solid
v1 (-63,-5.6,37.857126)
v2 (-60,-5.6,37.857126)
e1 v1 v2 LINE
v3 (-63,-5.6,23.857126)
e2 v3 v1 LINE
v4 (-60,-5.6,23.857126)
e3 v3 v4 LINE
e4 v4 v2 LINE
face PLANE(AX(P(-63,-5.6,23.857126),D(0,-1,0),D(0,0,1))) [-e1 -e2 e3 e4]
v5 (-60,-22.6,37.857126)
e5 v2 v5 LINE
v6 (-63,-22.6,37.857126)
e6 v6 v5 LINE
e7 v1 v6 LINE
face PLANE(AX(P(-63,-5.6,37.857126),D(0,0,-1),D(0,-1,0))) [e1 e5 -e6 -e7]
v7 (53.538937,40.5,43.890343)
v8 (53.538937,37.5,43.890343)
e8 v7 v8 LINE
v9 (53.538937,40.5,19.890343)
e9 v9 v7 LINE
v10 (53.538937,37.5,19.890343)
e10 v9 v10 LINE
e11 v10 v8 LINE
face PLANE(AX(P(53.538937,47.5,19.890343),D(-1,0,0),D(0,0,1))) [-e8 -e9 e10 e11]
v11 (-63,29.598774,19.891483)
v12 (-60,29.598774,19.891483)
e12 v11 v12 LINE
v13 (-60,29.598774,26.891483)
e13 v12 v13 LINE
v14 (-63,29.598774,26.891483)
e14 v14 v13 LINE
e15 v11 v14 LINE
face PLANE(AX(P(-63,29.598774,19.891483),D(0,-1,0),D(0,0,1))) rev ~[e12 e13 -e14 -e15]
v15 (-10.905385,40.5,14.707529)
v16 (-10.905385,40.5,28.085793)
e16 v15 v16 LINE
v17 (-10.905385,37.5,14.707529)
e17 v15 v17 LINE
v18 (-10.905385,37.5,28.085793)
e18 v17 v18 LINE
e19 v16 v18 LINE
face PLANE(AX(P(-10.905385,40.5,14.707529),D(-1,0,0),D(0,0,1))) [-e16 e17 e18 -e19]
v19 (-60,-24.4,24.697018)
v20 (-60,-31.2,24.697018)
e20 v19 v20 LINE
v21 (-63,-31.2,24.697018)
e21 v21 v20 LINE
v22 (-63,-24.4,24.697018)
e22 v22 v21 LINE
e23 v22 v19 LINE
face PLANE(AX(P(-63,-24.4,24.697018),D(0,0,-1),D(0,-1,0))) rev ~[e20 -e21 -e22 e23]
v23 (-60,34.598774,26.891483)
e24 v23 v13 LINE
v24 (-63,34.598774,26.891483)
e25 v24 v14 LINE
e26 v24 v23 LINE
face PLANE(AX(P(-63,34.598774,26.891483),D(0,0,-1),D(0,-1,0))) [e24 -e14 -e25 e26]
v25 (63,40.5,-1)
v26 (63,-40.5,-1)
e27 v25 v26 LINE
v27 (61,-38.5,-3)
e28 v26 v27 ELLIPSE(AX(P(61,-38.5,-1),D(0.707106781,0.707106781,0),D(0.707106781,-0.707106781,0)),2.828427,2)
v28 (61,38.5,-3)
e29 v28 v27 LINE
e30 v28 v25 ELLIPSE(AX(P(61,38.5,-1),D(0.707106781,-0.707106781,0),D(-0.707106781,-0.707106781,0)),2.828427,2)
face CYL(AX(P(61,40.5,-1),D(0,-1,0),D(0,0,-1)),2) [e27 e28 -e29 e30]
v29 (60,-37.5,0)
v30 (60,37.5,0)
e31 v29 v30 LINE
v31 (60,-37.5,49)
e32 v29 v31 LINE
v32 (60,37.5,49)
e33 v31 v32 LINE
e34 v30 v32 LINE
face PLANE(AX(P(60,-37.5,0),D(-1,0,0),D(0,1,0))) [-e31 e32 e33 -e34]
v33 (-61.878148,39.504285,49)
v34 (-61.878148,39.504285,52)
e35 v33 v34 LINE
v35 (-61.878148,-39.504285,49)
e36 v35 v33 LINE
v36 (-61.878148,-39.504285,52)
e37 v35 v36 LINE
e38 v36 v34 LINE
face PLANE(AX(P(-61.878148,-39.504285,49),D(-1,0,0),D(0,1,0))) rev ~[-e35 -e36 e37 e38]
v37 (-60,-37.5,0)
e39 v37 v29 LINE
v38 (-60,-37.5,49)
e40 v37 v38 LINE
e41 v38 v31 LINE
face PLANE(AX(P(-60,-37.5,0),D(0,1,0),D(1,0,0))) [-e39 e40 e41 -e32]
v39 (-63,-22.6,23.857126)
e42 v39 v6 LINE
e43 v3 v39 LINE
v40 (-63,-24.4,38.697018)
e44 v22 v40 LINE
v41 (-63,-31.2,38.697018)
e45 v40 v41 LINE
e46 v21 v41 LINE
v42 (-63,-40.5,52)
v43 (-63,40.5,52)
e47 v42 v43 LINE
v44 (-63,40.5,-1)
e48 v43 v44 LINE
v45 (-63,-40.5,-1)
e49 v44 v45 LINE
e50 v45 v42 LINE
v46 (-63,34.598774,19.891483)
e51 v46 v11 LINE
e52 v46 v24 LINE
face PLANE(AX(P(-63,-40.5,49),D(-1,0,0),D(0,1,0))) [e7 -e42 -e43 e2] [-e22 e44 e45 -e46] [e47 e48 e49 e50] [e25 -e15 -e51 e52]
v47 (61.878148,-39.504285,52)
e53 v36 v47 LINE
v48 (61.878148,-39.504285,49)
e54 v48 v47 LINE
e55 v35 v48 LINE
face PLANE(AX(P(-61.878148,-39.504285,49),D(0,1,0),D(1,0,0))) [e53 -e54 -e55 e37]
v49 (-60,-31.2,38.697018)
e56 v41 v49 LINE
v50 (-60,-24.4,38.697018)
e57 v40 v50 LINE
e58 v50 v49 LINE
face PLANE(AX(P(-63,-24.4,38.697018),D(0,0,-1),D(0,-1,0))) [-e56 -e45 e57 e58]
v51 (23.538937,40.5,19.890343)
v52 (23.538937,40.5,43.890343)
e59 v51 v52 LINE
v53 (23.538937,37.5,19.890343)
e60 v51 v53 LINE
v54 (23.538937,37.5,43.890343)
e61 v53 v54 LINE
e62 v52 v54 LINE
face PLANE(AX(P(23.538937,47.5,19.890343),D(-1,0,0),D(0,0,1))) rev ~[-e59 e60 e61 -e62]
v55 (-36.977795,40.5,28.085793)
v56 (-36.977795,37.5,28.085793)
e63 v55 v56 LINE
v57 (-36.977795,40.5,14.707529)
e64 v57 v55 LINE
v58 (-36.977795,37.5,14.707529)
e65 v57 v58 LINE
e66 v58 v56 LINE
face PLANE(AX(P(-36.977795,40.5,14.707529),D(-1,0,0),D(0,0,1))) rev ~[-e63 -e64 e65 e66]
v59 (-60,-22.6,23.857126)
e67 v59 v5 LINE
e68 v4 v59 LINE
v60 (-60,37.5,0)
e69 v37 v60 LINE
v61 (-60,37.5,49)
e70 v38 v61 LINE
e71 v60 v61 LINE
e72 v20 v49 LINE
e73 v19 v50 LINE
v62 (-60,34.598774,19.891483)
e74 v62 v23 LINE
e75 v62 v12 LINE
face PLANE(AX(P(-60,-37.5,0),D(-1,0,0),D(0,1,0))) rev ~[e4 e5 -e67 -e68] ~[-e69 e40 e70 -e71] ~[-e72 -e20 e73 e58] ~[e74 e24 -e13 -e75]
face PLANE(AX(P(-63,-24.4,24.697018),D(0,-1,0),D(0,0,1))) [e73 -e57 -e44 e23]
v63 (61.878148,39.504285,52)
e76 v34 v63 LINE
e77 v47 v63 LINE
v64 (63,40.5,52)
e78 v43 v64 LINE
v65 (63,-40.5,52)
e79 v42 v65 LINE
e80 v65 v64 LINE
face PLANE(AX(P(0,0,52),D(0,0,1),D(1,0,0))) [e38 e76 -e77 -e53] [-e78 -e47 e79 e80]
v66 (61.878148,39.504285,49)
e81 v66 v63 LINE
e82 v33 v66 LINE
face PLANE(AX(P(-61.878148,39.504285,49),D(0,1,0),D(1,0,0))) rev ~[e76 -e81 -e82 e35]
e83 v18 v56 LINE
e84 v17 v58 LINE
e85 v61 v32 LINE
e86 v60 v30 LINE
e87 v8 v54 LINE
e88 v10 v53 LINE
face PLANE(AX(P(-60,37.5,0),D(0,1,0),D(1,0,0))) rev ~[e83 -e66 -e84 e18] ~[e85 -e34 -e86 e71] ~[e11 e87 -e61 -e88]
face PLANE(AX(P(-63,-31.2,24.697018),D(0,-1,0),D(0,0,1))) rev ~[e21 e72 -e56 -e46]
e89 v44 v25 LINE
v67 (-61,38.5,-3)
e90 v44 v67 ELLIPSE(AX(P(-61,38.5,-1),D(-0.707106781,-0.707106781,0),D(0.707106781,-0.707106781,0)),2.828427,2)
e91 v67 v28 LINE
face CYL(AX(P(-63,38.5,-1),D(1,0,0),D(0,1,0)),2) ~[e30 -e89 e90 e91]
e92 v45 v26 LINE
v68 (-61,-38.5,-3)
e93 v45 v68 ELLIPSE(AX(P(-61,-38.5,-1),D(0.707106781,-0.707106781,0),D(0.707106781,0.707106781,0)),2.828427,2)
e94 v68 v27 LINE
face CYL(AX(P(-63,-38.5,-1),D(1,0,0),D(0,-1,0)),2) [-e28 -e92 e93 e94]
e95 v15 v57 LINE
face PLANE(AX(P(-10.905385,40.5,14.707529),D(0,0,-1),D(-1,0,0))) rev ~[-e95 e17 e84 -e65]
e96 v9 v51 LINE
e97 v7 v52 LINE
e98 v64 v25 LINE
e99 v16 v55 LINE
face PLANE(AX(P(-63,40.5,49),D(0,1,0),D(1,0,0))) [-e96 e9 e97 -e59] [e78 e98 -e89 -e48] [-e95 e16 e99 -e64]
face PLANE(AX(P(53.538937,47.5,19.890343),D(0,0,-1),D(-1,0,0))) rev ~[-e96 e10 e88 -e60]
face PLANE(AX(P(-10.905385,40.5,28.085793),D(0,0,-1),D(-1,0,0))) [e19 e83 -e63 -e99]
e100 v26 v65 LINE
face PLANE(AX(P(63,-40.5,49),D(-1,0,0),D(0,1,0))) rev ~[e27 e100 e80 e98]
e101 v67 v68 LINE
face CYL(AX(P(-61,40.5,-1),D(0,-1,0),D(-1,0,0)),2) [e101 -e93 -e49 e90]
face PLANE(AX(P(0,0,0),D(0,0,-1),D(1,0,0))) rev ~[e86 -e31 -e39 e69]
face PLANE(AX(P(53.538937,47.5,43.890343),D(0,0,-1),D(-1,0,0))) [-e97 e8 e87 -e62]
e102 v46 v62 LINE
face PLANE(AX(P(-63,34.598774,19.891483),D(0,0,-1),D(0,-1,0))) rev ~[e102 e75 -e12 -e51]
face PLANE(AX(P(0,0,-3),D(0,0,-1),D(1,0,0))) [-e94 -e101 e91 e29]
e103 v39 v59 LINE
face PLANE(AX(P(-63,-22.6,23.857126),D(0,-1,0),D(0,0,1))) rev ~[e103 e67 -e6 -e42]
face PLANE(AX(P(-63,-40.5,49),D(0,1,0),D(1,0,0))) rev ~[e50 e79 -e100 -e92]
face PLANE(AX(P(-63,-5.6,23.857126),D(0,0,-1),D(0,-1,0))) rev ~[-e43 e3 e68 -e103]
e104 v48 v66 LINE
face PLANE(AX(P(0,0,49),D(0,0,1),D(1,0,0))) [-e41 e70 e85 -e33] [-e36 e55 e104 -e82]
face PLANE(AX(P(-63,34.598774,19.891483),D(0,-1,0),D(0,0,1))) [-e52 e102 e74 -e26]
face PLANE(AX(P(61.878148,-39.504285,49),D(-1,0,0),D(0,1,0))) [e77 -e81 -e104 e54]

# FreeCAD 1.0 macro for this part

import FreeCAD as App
import Part
import Sketcher
from FreeCAD import Vector


def edges_at(feature, points):
    """Names of the edges that pass closest to the given points."""
    edges = feature.Shape.Edges
    near = lambda p: min(range(len(edges)), key=lambda i: edges[i].distToShape(Part.Vertex(*p))[0])
    return sorted({f"Edge{near(p) + 1}" for p in points})


def add_polygon(sketch, points):
    """Adds a closed chain of lines whose ends are joined by coincident constraints."""
    first, n = sketch.GeometryCount, len(points)
    for a, b in zip(points, points[1:] + points[:1]):
        sketch.addGeometry(Part.LineSegment(App.Vector(*a, 0), App.Vector(*b, 0)), False)
    for i in range(n):
        sketch.addConstraint(Sketcher.Constraint("Coincident", first + i, 2, first + (i + 1) % n, 1))

doc = App.newDocument("Part")
body = doc.addObject("PartDesign::Body", "Body")

# Sketch on XY plane
sketch1 = body.newObject("Sketcher::SketchObject", "Sketch")
sketch1.AttachmentSupport = (doc.getObject("XY_Plane"), [""])
sketch1.MapMode = "FlatFace"
add_polygon(sketch1, [(-63, 40.5), (-63, -40.5), (63, -40.5), (63, 40.5)])  # lines 0-3
add_polygon(sketch1, [(60, -37.5), (-60, -37.5), (-60, 37.5), (60, 37.5)])  # lines 4-7
sketch1.addConstraint(Sketcher.Constraint("Vertical", 0))
sketch1.addConstraint(Sketcher.Constraint("Horizontal", 1))
sketch1.addConstraint(Sketcher.Constraint("Vertical", 2))
sketch1.addConstraint(Sketcher.Constraint("Horizontal", 3))
sketch1.addConstraint(Sketcher.Constraint("Horizontal", 4))
sketch1.addConstraint(Sketcher.Constraint("Vertical", 5))
sketch1.addConstraint(Sketcher.Constraint("Horizontal", 6))
sketch1.addConstraint(Sketcher.Constraint("Vertical", 7))
sketch1.addConstraint(Sketcher.Constraint("Symmetric", 0, 2, 2, 2, -1, 1))
sketch1.addConstraint(Sketcher.Constraint("Symmetric", 4, 2, 6, 2, -1, 1))
sketch1.addConstraint(Sketcher.Constraint("DistanceX", 1, 1, 1, 2, 126.0))
sketch1.addConstraint(Sketcher.Constraint("DistanceX", 4, 2, 4, 1, 120.0))
sketch1.addConstraint(Sketcher.Constraint("DistanceY", 0, 2, 0, 1, 81.0))
sketch1.addConstraint(Sketcher.Constraint("DistanceY", 5, 1, 5, 2, 75.0))
pad1 = body.newObject("PartDesign::Pad", "Pad")
pad1.Profile = sketch1
pad1.Length = 49

# Sketch on XY plane
sketch2 = body.newObject("Sketcher::SketchObject", "Sketch001")
sketch2.AttachmentSupport = (doc.getObject("XY_Plane"), [""])
sketch2.MapMode = "FlatFace"
add_polygon(sketch2, [(-63, -40.5), (-63, 40.5), (63, 40.5), (63, -40.5)])  # lines 0-3
sketch2.addConstraint(Sketcher.Constraint("Vertical", 0))
sketch2.addConstraint(Sketcher.Constraint("Horizontal", 1))
sketch2.addConstraint(Sketcher.Constraint("Vertical", 2))
sketch2.addConstraint(Sketcher.Constraint("Horizontal", 3))
sketch2.addConstraint(Sketcher.Constraint("Symmetric", 0, 2, 2, 2, -1, 1))
sketch2.addConstraint(Sketcher.Constraint("DistanceX", 1, 1, 1, 2, 126.0))
sketch2.addConstraint(Sketcher.Constraint("DistanceY", 0, 1, 0, 2, 81.0))
pad2 = body.newObject("PartDesign::Pad", "Pad001")
pad2.Profile = sketch2
pad2.Length = 3
pad2.Reversed = True

# Sketch on XZ plane
sketch3 = body.newObject("Sketcher::SketchObject", "Sketch002")
sketch3.AttachmentSupport = (doc.getObject("XZ_Plane"), [""])
sketch3.MapMode = "FlatFace"
sketch3.AttachmentOffset = App.Placement(Vector(0, 0, -40.5), App.Rotation())
add_polygon(sketch3, [(-10.905385, 28.085793), (-10.905385, 14.707529), (-36.977795, 14.707529), (-36.977795, 28.085793)])  # lines 0-3
sketch3.addConstraint(Sketcher.Constraint("Vertical", 0))
sketch3.addConstraint(Sketcher.Constraint("Horizontal", 1))
sketch3.addConstraint(Sketcher.Constraint("Vertical", 2))
sketch3.addConstraint(Sketcher.Constraint("Horizontal", 3))
sketch3.addConstraint(Sketcher.Constraint("DistanceX", 1, 2, 1, 1, 26.07241))
sketch3.addConstraint(Sketcher.Constraint("DistanceY", 0, 2, 0, 1, 13.378264))
sketch3.addConstraint(Sketcher.Constraint("DistanceY", -1, 1, 0, 2, 14.707529))
sketch3.addConstraint(Sketcher.Constraint("DistanceX", 0, 2, -1, 1, 10.905385))
pocket1 = body.newObject("PartDesign::Pocket", "Pocket")
pocket1.Profile = sketch3
pocket1.Length = 5
pocket1.Reversed = True

# Sketch on XY plane
sketch4 = body.newObject("Sketcher::SketchObject", "Sketch003")
sketch4.AttachmentSupport = (doc.getObject("XY_Plane"), [""])
sketch4.MapMode = "FlatFace"
sketch4.AttachmentOffset = App.Placement(Vector(0, 0, 49), App.Rotation())
add_polygon(sketch4, [(-63, 40.5), (-63, -40.5), (63, -40.5), (63, 40.5)])  # lines 0-3
add_polygon(sketch4, [(61.878148, -39.504285), (-61.878148, -39.504285), (-61.878148, 39.504285), (61.878148, 39.504285)])  # lines 4-7
sketch4.addConstraint(Sketcher.Constraint("Vertical", 0))
sketch4.addConstraint(Sketcher.Constraint("Horizontal", 1))
sketch4.addConstraint(Sketcher.Constraint("Vertical", 2))
sketch4.addConstraint(Sketcher.Constraint("Horizontal", 3))
sketch4.addConstraint(Sketcher.Constraint("Horizontal", 4))
sketch4.addConstraint(Sketcher.Constraint("Vertical", 5))
sketch4.addConstraint(Sketcher.Constraint("Horizontal", 6))
sketch4.addConstraint(Sketcher.Constraint("Vertical", 7))
sketch4.addConstraint(Sketcher.Constraint("Symmetric", 0, 2, 2, 2, -1, 1))
sketch4.addConstraint(Sketcher.Constraint("Symmetric", 4, 2, 6, 2, -1, 1))
sketch4.addConstraint(Sketcher.Constraint("DistanceX", 1, 1, 1, 2, 126.0))
sketch4.addConstraint(Sketcher.Constraint("DistanceY", 0, 2, 0, 1, 81.0))
sketch4.addConstraint(Sketcher.Constraint("DistanceY", 5, 1, 5, 2, 79.00857))
sketch4.addConstraint(Sketcher.Constraint("DistanceX", 4, 2, 4, 1, 123.756296))
pad3 = body.newObject("PartDesign::Pad", "Pad002")
pad3.Profile = sketch4
pad3.Length = 3

# Sketch on YZ plane
sketch5 = body.newObject("Sketcher::SketchObject", "Sketch004")
sketch5.AttachmentSupport = (doc.getObject("YZ_Plane"), [""])
sketch5.MapMode = "FlatFace"
sketch5.AttachmentOffset = App.Placement(Vector(0, 0, -63), App.Rotation())
add_polygon(sketch5, [(-5.6, 37.857126), (-5.6, 23.857126), (-22.6, 23.857126), (-22.6, 37.857126)])  # lines 0-3
add_polygon(sketch5, [(-24.4, 38.697018), (-24.4, 24.697018), (-31.2, 24.697018), (-31.2, 38.697018)])  # lines 4-7
sketch5.addConstraint(Sketcher.Constraint("Vertical", 0))
sketch5.addConstraint(Sketcher.Constraint("Horizontal", 1))
sketch5.addConstraint(Sketcher.Constraint("Vertical", 2))
sketch5.addConstraint(Sketcher.Constraint("Horizontal", 3))
sketch5.addConstraint(Sketcher.Constraint("Vertical", 4))
sketch5.addConstraint(Sketcher.Constraint("Horizontal", 5))
sketch5.addConstraint(Sketcher.Constraint("Vertical", 6))
sketch5.addConstraint(Sketcher.Constraint("Horizontal", 7))
sketch5.addConstraint(Sketcher.Constraint("Equal", 2, 4))
sketch5.addConstraint(Sketcher.Constraint("DistanceX", 1, 2, 1, 1, 17.0))
sketch5.addConstraint(Sketcher.Constraint("DistanceY", 0, 2, 0, 1, 14.0))
sketch5.addConstraint(Sketcher.Constraint("DistanceX", 5, 2, 5, 1, 6.8))
sketch5.addConstraint(Sketcher.Constraint("DistanceX", 0, 2, -1, 1, 5.6))
sketch5.addConstraint(Sketcher.Constraint("DistanceX", 4, 2, -1, 1, 24.4))
sketch5.addConstraint(Sketcher.Constraint("DistanceY", -1, 1, 4, 2, 24.697018))
sketch5.addConstraint(Sketcher.Constraint("DistanceY", 1, 2, 4, 2, 0.839892))
pocket2 = body.newObject("PartDesign::Pocket", "Pocket001")
pocket2.Profile = sketch5
pocket2.Length = 5
pocket2.Reversed = True

# Sketch on XZ plane
sketch6 = body.newObject("Sketcher::SketchObject", "Sketch005")
sketch6.AttachmentSupport = (doc.getObject("XZ_Plane"), [""])
sketch6.MapMode = "FlatFace"
sketch6.AttachmentOffset = App.Placement(Vector(0, 0, -47.5), App.Rotation())
add_polygon(sketch6, [(53.538937, 43.890343), (53.538937, 19.890343), (23.538937, 19.890343), (23.538937, 43.890343)])  # lines 0-3
sketch6.addConstraint(Sketcher.Constraint("Vertical", 0))
sketch6.addConstraint(Sketcher.Constraint("Horizontal", 1))
sketch6.addConstraint(Sketcher.Constraint("Vertical", 2))
sketch6.addConstraint(Sketcher.Constraint("Horizontal", 3))
sketch6.addConstraint(Sketcher.Constraint("DistanceX", 1, 2, 1, 1, 30.0))
sketch6.addConstraint(Sketcher.Constraint("DistanceY", 0, 2, 0, 1, 24.0))
sketch6.addConstraint(Sketcher.Constraint("DistanceX", -1, 1, 0, 2, 53.538937))
sketch6.addConstraint(Sketcher.Constraint("DistanceY", -1, 1, 0, 2, 19.890343))
pocket3 = body.newObject("PartDesign::Pocket", "Pocket002")
pocket3.Profile = sketch6
pocket3.Length = 10
pocket3.Reversed = True
doc.recompute()

fillet = body.newObject("PartDesign::Fillet", "Fillet")
fillet.Base = (pocket3, edges_at(pocket3, [
    (0, -40.5, -3),
    (63, 0, -3),
    (0, 40.5, -3),
    (-63, 0, -3),
]))
fillet.Radius = 2

# Sketch on YZ plane
sketch7 = body.newObject("Sketcher::SketchObject", "Sketch006")
sketch7.AttachmentSupport = (doc.getObject("YZ_Plane"), [""])
sketch7.MapMode = "FlatFace"
sketch7.AttachmentOffset = App.Placement(Vector(0, 0, -63), App.Rotation())
add_polygon(sketch7, [(34.598774, 26.891483), (34.598774, 19.891483), (29.598774, 19.891483), (29.598774, 26.891483)])  # lines 0-3
sketch7.addConstraint(Sketcher.Constraint("Vertical", 0))
sketch7.addConstraint(Sketcher.Constraint("Horizontal", 1))
sketch7.addConstraint(Sketcher.Constraint("Vertical", 2))
sketch7.addConstraint(Sketcher.Constraint("Horizontal", 3))
sketch7.addConstraint(Sketcher.Constraint("DistanceX", 1, 2, 1, 1, 5.0))
sketch7.addConstraint(Sketcher.Constraint("DistanceY", 0, 2, 0, 1, 7.0))
sketch7.addConstraint(Sketcher.Constraint("DistanceX", -1, 1, 0, 2, 34.598774))
sketch7.addConstraint(Sketcher.Constraint("DistanceY", -1, 1, 0, 2, 19.891483))
pocket4 = body.newObject("PartDesign::Pocket", "Pocket003")
pocket4.Profile = sketch7
pocket4.Length = 5
pocket4.Reversed = True

doc.recompute()
